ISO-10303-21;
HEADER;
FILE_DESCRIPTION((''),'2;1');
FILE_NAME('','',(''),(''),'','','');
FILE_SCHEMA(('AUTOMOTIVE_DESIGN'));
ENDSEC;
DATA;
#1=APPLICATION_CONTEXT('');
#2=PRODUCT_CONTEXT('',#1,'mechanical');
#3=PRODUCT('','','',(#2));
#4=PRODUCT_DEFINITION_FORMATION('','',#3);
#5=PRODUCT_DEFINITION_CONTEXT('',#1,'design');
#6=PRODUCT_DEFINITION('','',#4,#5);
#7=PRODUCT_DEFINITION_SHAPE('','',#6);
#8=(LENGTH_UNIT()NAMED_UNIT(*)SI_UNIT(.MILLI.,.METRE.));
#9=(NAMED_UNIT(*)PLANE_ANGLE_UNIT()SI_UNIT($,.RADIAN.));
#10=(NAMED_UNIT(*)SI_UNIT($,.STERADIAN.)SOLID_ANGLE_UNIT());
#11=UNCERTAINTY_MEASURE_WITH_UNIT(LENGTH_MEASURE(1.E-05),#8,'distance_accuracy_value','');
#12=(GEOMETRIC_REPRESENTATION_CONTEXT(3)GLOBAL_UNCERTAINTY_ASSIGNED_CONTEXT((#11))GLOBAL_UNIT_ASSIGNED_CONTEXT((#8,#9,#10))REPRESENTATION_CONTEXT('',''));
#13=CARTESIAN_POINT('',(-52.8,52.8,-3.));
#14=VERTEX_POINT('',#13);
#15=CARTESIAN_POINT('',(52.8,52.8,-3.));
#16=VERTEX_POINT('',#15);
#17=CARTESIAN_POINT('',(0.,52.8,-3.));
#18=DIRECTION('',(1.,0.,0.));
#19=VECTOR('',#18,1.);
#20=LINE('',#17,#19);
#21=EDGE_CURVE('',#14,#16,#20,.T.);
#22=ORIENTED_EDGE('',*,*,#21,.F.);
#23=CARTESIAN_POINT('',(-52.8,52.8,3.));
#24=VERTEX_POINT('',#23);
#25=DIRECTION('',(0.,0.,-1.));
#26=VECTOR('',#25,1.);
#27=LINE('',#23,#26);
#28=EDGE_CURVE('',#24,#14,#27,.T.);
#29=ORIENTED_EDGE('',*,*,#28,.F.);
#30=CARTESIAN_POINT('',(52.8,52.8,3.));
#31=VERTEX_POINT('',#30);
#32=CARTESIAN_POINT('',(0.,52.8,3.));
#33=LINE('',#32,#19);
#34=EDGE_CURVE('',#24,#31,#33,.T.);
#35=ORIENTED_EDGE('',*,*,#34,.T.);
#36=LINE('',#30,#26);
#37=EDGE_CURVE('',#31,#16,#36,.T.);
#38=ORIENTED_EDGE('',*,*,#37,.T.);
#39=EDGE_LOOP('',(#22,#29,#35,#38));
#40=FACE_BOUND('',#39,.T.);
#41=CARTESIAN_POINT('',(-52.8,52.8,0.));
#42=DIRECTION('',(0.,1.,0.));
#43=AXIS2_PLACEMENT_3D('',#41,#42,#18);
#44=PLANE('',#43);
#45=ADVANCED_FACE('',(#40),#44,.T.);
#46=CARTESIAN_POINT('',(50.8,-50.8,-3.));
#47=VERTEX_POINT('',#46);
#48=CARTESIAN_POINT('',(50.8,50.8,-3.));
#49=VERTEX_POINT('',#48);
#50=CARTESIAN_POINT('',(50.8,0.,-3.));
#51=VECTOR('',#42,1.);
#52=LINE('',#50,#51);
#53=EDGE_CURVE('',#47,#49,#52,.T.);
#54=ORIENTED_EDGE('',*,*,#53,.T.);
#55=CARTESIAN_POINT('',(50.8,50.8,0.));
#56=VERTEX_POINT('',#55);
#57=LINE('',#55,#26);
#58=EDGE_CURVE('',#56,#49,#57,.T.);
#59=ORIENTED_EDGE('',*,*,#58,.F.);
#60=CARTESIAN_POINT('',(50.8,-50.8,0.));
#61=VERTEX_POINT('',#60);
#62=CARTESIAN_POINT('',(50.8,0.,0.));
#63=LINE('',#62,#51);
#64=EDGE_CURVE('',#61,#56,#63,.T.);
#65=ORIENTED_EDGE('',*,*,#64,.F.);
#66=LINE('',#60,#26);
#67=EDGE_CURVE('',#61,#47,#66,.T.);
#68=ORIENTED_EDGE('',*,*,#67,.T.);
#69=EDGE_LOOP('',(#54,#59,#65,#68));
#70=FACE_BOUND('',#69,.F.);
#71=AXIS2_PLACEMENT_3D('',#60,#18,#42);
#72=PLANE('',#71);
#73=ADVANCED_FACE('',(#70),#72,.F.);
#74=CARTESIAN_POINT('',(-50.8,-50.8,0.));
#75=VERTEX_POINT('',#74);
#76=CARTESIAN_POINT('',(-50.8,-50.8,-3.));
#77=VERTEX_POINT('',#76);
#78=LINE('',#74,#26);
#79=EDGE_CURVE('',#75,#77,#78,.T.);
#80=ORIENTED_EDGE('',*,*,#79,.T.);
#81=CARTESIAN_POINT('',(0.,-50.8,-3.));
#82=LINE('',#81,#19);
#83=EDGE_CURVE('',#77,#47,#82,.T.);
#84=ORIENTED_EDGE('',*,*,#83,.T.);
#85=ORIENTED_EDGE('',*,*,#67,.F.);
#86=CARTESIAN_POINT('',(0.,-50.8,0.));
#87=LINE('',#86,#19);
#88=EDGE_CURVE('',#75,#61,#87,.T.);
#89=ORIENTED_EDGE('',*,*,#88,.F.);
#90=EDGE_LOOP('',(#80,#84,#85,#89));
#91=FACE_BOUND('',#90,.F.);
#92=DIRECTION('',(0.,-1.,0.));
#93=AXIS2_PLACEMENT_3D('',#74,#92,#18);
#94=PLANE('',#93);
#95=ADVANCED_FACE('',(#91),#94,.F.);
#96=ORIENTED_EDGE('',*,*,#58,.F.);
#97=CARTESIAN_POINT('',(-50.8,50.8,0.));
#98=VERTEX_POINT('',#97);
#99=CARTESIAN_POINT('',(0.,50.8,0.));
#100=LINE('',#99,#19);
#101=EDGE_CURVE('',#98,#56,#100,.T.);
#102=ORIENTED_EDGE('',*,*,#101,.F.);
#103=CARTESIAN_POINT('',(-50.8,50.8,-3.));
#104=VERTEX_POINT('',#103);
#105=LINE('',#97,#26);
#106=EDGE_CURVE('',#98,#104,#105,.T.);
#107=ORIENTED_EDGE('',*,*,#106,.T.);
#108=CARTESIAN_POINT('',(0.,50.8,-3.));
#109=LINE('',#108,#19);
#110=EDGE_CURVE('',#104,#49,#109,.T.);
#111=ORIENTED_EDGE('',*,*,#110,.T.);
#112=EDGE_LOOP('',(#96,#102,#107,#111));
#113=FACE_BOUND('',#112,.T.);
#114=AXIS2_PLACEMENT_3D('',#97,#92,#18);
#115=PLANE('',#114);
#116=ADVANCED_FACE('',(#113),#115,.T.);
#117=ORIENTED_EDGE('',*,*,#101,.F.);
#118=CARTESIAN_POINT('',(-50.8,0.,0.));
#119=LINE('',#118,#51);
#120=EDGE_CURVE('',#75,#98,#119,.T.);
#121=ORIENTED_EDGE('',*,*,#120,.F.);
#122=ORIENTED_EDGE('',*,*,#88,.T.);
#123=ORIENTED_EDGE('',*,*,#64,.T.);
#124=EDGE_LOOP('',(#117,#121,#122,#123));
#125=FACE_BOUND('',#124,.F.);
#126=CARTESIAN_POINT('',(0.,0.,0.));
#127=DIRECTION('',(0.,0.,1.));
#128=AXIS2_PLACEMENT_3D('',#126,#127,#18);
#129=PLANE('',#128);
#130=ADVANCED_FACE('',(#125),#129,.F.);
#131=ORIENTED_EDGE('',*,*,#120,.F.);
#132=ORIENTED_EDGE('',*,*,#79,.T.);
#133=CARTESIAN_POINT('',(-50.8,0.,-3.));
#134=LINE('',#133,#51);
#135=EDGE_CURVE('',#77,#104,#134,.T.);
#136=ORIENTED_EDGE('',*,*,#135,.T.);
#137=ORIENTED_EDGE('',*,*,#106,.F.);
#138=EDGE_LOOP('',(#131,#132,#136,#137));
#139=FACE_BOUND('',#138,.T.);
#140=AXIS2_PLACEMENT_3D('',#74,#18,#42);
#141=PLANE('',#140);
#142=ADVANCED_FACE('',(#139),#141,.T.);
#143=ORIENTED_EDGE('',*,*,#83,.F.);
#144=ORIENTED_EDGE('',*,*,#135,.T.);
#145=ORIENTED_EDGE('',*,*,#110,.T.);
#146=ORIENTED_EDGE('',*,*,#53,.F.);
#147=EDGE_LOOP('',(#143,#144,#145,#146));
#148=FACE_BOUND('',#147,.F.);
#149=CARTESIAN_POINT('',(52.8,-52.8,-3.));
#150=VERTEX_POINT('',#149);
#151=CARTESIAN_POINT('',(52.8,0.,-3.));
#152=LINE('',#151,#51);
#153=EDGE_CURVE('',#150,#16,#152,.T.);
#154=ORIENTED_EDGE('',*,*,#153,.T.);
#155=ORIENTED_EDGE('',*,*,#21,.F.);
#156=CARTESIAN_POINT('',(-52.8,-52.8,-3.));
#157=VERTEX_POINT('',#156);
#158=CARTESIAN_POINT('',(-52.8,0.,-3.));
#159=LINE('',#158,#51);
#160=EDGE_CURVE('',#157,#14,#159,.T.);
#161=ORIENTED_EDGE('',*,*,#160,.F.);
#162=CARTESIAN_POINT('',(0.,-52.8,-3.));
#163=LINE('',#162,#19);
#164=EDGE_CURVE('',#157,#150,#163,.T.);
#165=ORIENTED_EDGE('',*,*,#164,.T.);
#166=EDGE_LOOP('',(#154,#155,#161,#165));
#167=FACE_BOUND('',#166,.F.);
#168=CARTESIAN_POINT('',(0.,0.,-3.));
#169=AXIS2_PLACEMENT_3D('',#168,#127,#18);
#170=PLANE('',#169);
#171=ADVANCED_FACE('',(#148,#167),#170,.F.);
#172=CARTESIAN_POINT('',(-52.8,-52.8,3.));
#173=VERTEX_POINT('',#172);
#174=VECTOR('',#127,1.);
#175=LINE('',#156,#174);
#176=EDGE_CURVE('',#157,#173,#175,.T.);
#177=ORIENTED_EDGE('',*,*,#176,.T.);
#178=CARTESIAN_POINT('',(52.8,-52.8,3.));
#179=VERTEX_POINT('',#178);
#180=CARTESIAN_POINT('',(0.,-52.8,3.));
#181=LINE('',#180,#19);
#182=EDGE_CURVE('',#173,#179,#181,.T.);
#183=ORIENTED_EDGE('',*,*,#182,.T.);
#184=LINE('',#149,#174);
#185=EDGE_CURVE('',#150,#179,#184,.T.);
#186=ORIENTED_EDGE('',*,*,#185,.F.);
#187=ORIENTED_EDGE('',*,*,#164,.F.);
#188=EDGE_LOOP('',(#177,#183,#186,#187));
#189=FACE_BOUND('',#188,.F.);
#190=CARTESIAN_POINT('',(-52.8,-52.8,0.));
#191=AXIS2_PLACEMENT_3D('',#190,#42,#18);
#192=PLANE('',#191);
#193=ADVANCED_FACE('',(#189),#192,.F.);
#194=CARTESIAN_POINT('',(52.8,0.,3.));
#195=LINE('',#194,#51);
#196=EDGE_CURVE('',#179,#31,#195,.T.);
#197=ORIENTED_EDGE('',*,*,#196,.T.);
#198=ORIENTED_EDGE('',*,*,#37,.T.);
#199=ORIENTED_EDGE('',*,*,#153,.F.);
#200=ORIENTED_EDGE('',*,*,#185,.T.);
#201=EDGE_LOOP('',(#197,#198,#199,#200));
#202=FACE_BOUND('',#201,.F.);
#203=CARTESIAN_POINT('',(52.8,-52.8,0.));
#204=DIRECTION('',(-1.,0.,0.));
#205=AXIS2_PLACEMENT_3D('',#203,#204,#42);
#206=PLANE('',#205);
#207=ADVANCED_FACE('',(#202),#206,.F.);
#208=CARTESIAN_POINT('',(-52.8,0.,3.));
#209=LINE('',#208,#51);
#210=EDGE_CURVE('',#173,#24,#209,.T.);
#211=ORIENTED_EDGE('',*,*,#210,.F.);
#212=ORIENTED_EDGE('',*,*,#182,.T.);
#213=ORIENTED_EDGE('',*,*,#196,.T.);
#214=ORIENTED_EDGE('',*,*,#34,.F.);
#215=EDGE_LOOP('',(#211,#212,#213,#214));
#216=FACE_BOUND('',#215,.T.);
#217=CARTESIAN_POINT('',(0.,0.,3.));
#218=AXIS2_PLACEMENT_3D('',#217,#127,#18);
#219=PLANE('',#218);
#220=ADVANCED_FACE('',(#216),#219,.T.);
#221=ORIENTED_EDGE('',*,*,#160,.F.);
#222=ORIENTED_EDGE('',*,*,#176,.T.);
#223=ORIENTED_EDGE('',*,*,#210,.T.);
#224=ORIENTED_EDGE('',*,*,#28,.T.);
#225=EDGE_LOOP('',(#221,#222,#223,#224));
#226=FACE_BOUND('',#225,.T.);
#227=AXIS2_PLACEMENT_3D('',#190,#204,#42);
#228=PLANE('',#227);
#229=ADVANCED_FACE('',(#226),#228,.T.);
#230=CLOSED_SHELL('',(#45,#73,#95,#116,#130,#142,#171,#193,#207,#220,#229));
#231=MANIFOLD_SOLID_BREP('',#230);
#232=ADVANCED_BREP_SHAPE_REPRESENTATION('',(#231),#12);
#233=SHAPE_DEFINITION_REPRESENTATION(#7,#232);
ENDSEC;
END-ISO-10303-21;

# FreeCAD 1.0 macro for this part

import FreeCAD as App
import Part
import Sketcher
Q = App.Units.Quantity

doc = App.newDocument("Part")
body = doc.addObject("PartDesign::Body", "Body")

sketch1 = body.newObject("Sketcher::SketchObject", "Sketch")
sketch1.AttachmentSupport = (doc.getObject("XY_Plane"), [""])
sketch1.MapMode = "FlatFace"
sketch1.addGeometry([
    Part.LineSegment(App.Vector(-53, 53, 0), App.Vector(-53, -53, 0)),
    Part.LineSegment(App.Vector(-53, -53, 0), App.Vector(53, -53, 0)),
    Part.LineSegment(App.Vector(53, -53, 0), App.Vector(53, 53, 0)),
    Part.LineSegment(App.Vector(53, 53, 0), App.Vector(-53, 53, 0)),
    Part.LineSegment(App.Vector(51, -51, 0), App.Vector(-51, -51, 0)),
    Part.LineSegment(App.Vector(-51, -51, 0), App.Vector(-51, 51, 0)),
    Part.LineSegment(App.Vector(-51, 51, 0), App.Vector(51, 51, 0)),
    Part.LineSegment(App.Vector(51, 51, 0), App.Vector(51, -51, 0)),
], False)
sketch1.addConstraint([
    Sketcher.Constraint("Coincident", 0, 2, 1, 1),
    Sketcher.Constraint("Coincident", 1, 2, 2, 1),
    Sketcher.Constraint("Coincident", 2, 2, 3, 1),
    Sketcher.Constraint("Coincident", 3, 2, 0, 1),
    Sketcher.Constraint("Coincident", 4, 2, 5, 1),
    Sketcher.Constraint("Coincident", 5, 2, 6, 1),
    Sketcher.Constraint("Coincident", 6, 2, 7, 1),
    Sketcher.Constraint("Coincident", 7, 2, 4, 1),
    Sketcher.Constraint("Vertical", 0),
    Sketcher.Constraint("Horizontal", 1),
    Sketcher.Constraint("Vertical", 2),
    Sketcher.Constraint("Horizontal", 3),
    Sketcher.Constraint("Horizontal", 4),
    Sketcher.Constraint("Vertical", 5),
    Sketcher.Constraint("Horizontal", 6),
    Sketcher.Constraint("Vertical", 7),
    Sketcher.Constraint("Symmetric", 0, 2, 2, 2, -1, 1),
    Sketcher.Constraint("Symmetric", 4, 2, 6, 2, -1, 1),
    Sketcher.Constraint("Equal", 3, 0),
    Sketcher.Constraint("Equal", 6, 5),
    Sketcher.Constraint("DistanceX", 1, 1, 1, 2, Q("105.6 mm")),
    Sketcher.Constraint("DistanceX", 4, 2, 4, 1, Q("101.6 mm")),
])
pad1 = body.newObject("PartDesign::Pad", "Pad")
pad1.Profile = sketch1
pad1.Length = 3
pad1.Reversed = True

sketch2 = body.newObject("Sketcher::SketchObject", "Sketch001")
sketch2.AttachmentSupport = (doc.getObject("XY_Plane"), [""])
sketch2.MapMode = "FlatFace"
sketch2.addGeometry([
    Part.LineSegment(App.Vector(-53, 53, 0), App.Vector(-53, -53, 0)),
    Part.LineSegment(App.Vector(-53, -53, 0), App.Vector(53, -53, 0)),
    Part.LineSegment(App.Vector(53, -53, 0), App.Vector(53, 53, 0)),
    Part.LineSegment(App.Vector(53, 53, 0), App.Vector(-53, 53, 0)),
], False)
sketch2.addConstraint([
    Sketcher.Constraint("Coincident", 0, 2, 1, 1),
    Sketcher.Constraint("Coincident", 1, 2, 2, 1),
    Sketcher.Constraint("Coincident", 2, 2, 3, 1),
    Sketcher.Constraint("Coincident", 3, 2, 0, 1),
    Sketcher.Constraint("Vertical", 0),
    Sketcher.Constraint("Horizontal", 1),
    Sketcher.Constraint("Vertical", 2),
    Sketcher.Constraint("Horizontal", 3),
    Sketcher.Constraint("Symmetric", 0, 2, 2, 2, -1, 1),
    Sketcher.Constraint("Equal", 3, 0),
    Sketcher.Constraint("DistanceX", 1, 1, 1, 2, Q("105.6 mm")),
])
pad2 = body.newObject("PartDesign::Pad", "Pad001")
pad2.Profile = sketch2
pad2.Length = 3

doc.recompute()
